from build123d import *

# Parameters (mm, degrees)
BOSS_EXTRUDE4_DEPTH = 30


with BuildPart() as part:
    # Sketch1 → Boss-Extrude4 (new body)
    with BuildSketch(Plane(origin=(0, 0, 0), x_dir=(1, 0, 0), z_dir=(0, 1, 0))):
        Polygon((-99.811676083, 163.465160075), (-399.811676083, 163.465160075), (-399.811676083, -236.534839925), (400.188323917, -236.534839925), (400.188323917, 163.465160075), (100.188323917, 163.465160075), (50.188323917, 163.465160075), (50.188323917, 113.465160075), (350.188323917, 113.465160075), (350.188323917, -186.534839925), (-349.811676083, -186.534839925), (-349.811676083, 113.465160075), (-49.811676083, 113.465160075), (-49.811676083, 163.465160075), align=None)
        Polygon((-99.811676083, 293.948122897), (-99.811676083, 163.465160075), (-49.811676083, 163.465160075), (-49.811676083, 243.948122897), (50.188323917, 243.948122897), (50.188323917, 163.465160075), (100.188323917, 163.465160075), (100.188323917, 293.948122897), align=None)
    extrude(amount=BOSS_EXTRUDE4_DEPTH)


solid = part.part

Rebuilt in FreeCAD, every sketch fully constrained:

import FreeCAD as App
import Part
import Sketcher
from FreeCAD import Vector


def add_polygon(sketch, points):
    """Adds a closed chain of lines whose ends are joined by coincident constraints."""
    first, n = sketch.GeometryCount, len(points)
    for a, b in zip(points, points[1:] + points[:1]):
        sketch.addGeometry(Part.LineSegment(App.Vector(*a, 0), App.Vector(*b, 0)), False)
    for i in range(n):
        sketch.addConstraint(Sketcher.Constraint("Coincident", first + i, 2, first + (i + 1) % n, 1))

doc = App.newDocument("Part")
body = doc.addObject("PartDesign::Body", "Body")

sketch1 = body.newObject("Sketcher::SketchObject", "Sketch")
sketch1.AttachmentSupport = (doc.getObject("XZ_Plane"), [""])
sketch1.MapMode = "FlatFace"
add_polygon(sketch1, [(-400, -163), (-400, 237), (400, 237), (400, -163), (100, -163), (100, -294), (-100, -294), (-100, -163)])
add_polygon(sketch1, [(50, -113), (350, -113), (350, 187), (-350, 187), (-350, -113), (-50, -113), (-50, -244), (50, -244)])
sketch1.addConstraint(Sketcher.Constraint("Vertical", 0))
sketch1.addConstraint(Sketcher.Constraint("Horizontal", 1))
sketch1.addConstraint(Sketcher.Constraint("Vertical", 2))
sketch1.addConstraint(Sketcher.Constraint("Horizontal", 3))
sketch1.addConstraint(Sketcher.Constraint("Vertical", 4))
sketch1.addConstraint(Sketcher.Constraint("Horizontal", 5))
sketch1.addConstraint(Sketcher.Constraint("Vertical", 6))
sketch1.addConstraint(Sketcher.Constraint("Horizontal", 7))
sketch1.addConstraint(Sketcher.Constraint("Horizontal", 8))
sketch1.addConstraint(Sketcher.Constraint("Vertical", 9))
sketch1.addConstraint(Sketcher.Constraint("Horizontal", 10))
sketch1.addConstraint(Sketcher.Constraint("Vertical", 11))
sketch1.addConstraint(Sketcher.Constraint("Horizontal", 12))
sketch1.addConstraint(Sketcher.Constraint("Vertical", 13))
sketch1.addConstraint(Sketcher.Constraint("Horizontal", 14))
sketch1.addConstraint(Sketcher.Constraint("Vertical", 15))
sketch1.addConstraint(Sketcher.Constraint("Horizontal", 3, 2, 6, 2))
sketch1.addConstraint(Sketcher.Constraint("Horizontal", 8, 2, 11, 2))
sketch1.addConstraint(Sketcher.Constraint("Equal", 3, 7))
sketch1.addConstraint(Sketcher.Constraint("Equal", 7, 8))
sketch1.addConstraint(Sketcher.Constraint("Equal", 8, 12))
sketch1.addConstraint(Sketcher.Constraint("Equal", 12, 9))
sketch1.addConstraint(Sketcher.Constraint("Equal", 6, 13))
sketch1.addConstraint(Sketcher.Constraint("DistanceX", 1, 1, 1, 2, 800.0))
sketch1.addConstraint(Sketcher.Constraint("DistanceX", 3, 2, 3, 1, 300.0))
sketch1.addConstraint(Sketcher.Constraint("DistanceX", 10, 2, 10, 1, 700.0))
sketch1.addConstraint(Sketcher.Constraint("DistanceY", 0, 1, 0, 2, 400.0))
sketch1.addConstraint(Sketcher.Constraint("DistanceX", 8, 2, 2, 2, 50.0))
sketch1.addConstraint(Sketcher.Constraint("DistanceY", 2, 2, 8, 2, 50.0))
sketch1.addConstraint(Sketcher.Constraint("DistanceY", 4, 2, 4, 1, 130.482963))
sketch1.addConstraint(Sketcher.Constraint("DistanceY", -1, 1, 0, 2, 236.53484))
sketch1.addConstraint(Sketcher.Constraint("DistanceX", 0, 2, -1, 1, 399.811676))
pad1 = body.newObject("PartDesign::Pad", "Pad")
pad1.Profile = sketch1
pad1.Length = 30
pad1.Reversed = True

doc.recompute()
